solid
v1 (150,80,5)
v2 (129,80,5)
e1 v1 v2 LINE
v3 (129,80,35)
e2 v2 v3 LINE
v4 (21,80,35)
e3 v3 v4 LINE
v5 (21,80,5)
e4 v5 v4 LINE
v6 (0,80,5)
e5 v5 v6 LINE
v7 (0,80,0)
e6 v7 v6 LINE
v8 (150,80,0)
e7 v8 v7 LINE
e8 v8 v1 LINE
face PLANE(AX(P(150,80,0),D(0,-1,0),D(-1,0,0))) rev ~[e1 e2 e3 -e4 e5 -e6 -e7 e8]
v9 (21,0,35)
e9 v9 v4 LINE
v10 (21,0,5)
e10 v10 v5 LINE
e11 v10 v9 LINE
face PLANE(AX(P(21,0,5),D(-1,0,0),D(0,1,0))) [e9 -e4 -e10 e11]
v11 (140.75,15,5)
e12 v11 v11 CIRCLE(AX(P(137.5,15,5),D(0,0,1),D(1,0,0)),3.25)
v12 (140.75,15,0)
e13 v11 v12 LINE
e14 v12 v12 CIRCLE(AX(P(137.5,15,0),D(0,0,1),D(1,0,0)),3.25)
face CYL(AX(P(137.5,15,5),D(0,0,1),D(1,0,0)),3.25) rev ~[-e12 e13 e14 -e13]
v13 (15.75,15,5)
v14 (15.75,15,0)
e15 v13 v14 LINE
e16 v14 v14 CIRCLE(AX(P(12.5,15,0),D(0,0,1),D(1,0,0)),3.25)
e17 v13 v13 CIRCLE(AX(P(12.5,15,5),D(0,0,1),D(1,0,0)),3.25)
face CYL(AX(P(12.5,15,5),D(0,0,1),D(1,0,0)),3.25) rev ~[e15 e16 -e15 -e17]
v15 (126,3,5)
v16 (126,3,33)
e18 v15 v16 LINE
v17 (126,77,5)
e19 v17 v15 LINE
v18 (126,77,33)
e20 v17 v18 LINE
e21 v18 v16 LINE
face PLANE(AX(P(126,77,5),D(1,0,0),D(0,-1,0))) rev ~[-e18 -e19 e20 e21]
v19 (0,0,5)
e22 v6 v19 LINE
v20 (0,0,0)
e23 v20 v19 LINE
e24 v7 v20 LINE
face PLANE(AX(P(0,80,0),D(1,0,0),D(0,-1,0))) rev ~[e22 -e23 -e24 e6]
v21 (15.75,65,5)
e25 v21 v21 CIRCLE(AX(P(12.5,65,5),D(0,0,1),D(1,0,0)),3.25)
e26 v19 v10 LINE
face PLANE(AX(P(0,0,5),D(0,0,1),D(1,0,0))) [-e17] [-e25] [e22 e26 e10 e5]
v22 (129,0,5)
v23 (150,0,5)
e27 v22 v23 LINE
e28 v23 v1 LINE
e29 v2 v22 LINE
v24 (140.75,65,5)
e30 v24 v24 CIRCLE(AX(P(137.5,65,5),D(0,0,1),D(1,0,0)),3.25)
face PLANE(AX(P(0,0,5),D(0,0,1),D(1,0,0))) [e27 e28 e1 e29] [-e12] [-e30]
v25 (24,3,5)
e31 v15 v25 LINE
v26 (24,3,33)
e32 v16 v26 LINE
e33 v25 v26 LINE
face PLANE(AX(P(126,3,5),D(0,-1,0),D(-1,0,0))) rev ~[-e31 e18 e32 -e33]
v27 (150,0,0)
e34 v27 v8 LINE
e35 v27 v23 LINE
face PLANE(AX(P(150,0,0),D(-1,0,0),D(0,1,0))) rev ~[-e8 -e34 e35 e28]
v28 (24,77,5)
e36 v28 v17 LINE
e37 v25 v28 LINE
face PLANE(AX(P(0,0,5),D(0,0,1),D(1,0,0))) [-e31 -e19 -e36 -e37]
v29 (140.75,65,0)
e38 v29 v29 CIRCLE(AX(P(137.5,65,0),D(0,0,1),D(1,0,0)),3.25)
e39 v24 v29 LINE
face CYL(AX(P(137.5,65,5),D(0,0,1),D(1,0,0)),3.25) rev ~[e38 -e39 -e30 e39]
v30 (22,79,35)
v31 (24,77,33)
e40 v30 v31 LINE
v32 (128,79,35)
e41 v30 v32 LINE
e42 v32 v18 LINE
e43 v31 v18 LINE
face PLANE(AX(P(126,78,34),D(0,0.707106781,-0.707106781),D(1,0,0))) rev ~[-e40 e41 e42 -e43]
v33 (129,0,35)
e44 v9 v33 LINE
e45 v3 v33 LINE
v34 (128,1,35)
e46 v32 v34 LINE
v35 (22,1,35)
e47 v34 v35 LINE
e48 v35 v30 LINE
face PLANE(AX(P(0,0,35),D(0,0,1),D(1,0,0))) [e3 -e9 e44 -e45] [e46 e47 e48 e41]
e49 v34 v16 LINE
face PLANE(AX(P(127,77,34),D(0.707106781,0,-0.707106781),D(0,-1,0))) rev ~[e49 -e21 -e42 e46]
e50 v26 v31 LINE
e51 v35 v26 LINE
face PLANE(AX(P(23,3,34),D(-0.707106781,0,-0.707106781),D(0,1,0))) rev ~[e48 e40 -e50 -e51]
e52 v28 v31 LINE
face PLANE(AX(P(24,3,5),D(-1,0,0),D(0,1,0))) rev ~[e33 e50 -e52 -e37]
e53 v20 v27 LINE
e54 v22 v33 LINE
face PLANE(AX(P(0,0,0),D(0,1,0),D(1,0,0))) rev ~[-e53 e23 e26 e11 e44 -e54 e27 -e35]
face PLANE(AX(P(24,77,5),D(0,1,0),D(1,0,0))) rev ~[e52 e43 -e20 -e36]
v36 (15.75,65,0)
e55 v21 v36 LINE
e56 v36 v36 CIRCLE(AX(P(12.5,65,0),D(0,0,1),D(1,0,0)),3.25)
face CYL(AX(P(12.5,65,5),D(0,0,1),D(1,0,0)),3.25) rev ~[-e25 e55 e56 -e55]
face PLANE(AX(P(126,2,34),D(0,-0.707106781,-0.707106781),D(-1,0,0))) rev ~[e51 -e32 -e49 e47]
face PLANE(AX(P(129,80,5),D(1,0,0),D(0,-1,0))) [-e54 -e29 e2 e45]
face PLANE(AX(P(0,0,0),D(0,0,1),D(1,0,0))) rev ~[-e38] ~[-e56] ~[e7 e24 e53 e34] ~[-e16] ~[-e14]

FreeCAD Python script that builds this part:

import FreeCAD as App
import Part
import Sketcher

V = App.Vector


def edges_at(feature, points):
    """Names of the edges that pass closest to the given points."""
    edges = feature.Shape.Edges
    near = lambda p: min(range(len(edges)), key=lambda i: edges[i].distToShape(Part.Vertex(*p))[0])
    return sorted({f"Edge{near(p) + 1}" for p in points})


def add_polygon(sketch, points):
    """Adds a closed chain of lines whose ends are joined by coincident constraints."""
    first, n = sketch.GeometryCount, len(points)
    for a, b in zip(points, points[1:] + points[:1]):
        sketch.addGeometry(Part.LineSegment(App.Vector(*a, 0), App.Vector(*b, 0)), False)
    for i in range(n):
        sketch.addConstraint(Sketcher.Constraint("Coincident", first + i, 2, first + (i + 1) % n, 1))

doc = App.newDocument("Part")
body = doc.addObject("PartDesign::Body", "Body")

sketch1 = doc.addObject("Sketcher::SketchObject", "Sketch")
body.addObject(sketch1)
sketch1.AttachmentSupport = (doc.XY_Plane, [""])
sketch1.MapMode = "FlatFace"
add_polygon(sketch1, [(0, 80), (0, 0), (150, 0), (150, 80)])
sketch1.addConstraint(Sketcher.Constraint("Vertical", 0))
sketch1.addConstraint(Sketcher.Constraint("Horizontal", 1))
sketch1.addConstraint(Sketcher.Constraint("Vertical", 2))
sketch1.addConstraint(Sketcher.Constraint("Horizontal", 3))
sketch1.addConstraint(Sketcher.Constraint("Coincident", 0, 2, -1, 1))
sketch1.addConstraint(Sketcher.Constraint("DistanceX", 1, 1, 1, 2, 150.0))
sketch1.addConstraint(Sketcher.Constraint("DistanceY", 0, 2, 0, 1, 80.0))
pad1 = doc.addObject("PartDesign::Pad", "Pad")
body.addObject(pad1)
pad1.Profile = sketch1
pad1.Length = 5

sketch2 = doc.addObject("Sketcher::SketchObject", "Sketch001")
body.addObject(sketch2)
sketch2.AttachmentSupport = (doc.XY_Plane, [""])
sketch2.MapMode = "FlatFace"
sketch2.AttachmentOffset = App.Placement(V(0, 0, 5), App.Rotation())
add_polygon(sketch2, [(21, 80), (21, 0), (129, 0), (129, 80)])
add_polygon(sketch2, [(126, 77), (126, 3), (24, 3), (24, 77)])
sketch2.addConstraint(Sketcher.Constraint("Vertical", 0))
sketch2.addConstraint(Sketcher.Constraint("Horizontal", 1))
sketch2.addConstraint(Sketcher.Constraint("Vertical", 2))
sketch2.addConstraint(Sketcher.Constraint("Horizontal", 3))
sketch2.addConstraint(Sketcher.Constraint("Vertical", 4))
sketch2.addConstraint(Sketcher.Constraint("Horizontal", 5))
sketch2.addConstraint(Sketcher.Constraint("Vertical", 6))
sketch2.addConstraint(Sketcher.Constraint("Horizontal", 7))
sketch2.addConstraint(Sketcher.Constraint("PointOnObject", 0, 2, -1))
sketch2.addConstraint(Sketcher.Constraint("DistanceX", 1, 1, 1, 2, 108.0))
sketch2.addConstraint(Sketcher.Constraint("DistanceX", 5, 2, 5, 1, 102.0))
sketch2.addConstraint(Sketcher.Constraint("DistanceX", -1, 1, 0, 2, 21.0))
sketch2.addConstraint(Sketcher.Constraint("DistanceY", -1, 1, 4, 2, 3.0))
sketch2.addConstraint(Sketcher.Constraint("DistanceX", 4, 2, 1, 2, 3.0))
sketch2.addConstraint(Sketcher.Constraint("DistanceY", 6, 2, 3, 2, 3.0))
sketch2.addConstraint(Sketcher.Constraint("DistanceY", 0, 2, 0, 1, 80.0))
pad2 = doc.addObject("PartDesign::Pad", "Pad001")
body.addObject(pad2)
pad2.Profile = sketch2
pad2.Length = 30
doc.recompute()

chamfer = doc.addObject("PartDesign::Chamfer", "Chamfer")
body.addObject(chamfer)
chamfer.Base = (pad2, edges_at(pad2, [(75, 3, 35)]))
chamfer.Size = 2
doc.recompute()

chamfer2 = doc.addObject("PartDesign::Chamfer", "Chamfer001")
body.addObject(chamfer2)
chamfer2.Base = (chamfer, edges_at(chamfer, [(126, 40, 35)]))
chamfer2.Size = 2
doc.recompute()

chamfer3 = doc.addObject("PartDesign::Chamfer", "Chamfer002")
body.addObject(chamfer3)
chamfer3.Base = (chamfer2, edges_at(chamfer2, [(75, 77, 35), (24, 40, 35)]))
chamfer3.Size = 2

sketch3 = doc.addObject("Sketcher::SketchObject", "Sketch002")
body.addObject(sketch3)
sketch3.AttachmentSupport = (doc.XY_Plane, [""])
sketch3.MapMode = "FlatFace"
sketch3.AttachmentOffset = App.Placement(V(0, 0, 5), App.Rotation())
sketch3.addGeometry(Part.Circle(V(137.5, 15, 0), V(0, 0, 1), 3.25), False)
sketch3.addGeometry(Part.Circle(V(137.5, 65, 0), V(0, 0, 1), 3.25), False)
sketch3.addGeometry(Part.Circle(V(12.5, 15, 0), V(0, 0, 1), 3.25), False)
sketch3.addGeometry(Part.Circle(V(12.5, 65, 0), V(0, 0, 1), 3.25), False)
sketch3.addConstraint(Sketcher.Constraint("Equal", 0, 1))
sketch3.addConstraint(Sketcher.Constraint("Equal", 1, 2))
sketch3.addConstraint(Sketcher.Constraint("Equal", 2, 3))
sketch3.addConstraint(Sketcher.Constraint("Horizontal", 0, 3, 2, 3))
sketch3.addConstraint(Sketcher.Constraint("Horizontal", 1, 3, 3, 3))
sketch3.addConstraint(Sketcher.Constraint("Vertical", 0, 3, 1, 3))
sketch3.addConstraint(Sketcher.Constraint("Vertical", 2, 3, 3, 3))
sketch3.addConstraint(Sketcher.Constraint("Diameter", 0, 6.5))
sketch3.addConstraint(Sketcher.Constraint("DistanceY", -1, 1, 0, 3, 15.0))
sketch3.addConstraint(Sketcher.Constraint("DistanceY", 0, 3, 1, 3, 50.0))
sketch3.addConstraint(Sketcher.Constraint("DistanceX", -1, 1, 2, 3, 12.5))
sketch3.addConstraint(Sketcher.Constraint("DistanceX", 2, 3, 0, 3, 125.0))
pocket1 = doc.addObject("PartDesign::Pocket", "Pocket")
body.addObject(pocket1)
pocket1.Profile = sketch3
pocket1.Length = 60

doc.recompute()
